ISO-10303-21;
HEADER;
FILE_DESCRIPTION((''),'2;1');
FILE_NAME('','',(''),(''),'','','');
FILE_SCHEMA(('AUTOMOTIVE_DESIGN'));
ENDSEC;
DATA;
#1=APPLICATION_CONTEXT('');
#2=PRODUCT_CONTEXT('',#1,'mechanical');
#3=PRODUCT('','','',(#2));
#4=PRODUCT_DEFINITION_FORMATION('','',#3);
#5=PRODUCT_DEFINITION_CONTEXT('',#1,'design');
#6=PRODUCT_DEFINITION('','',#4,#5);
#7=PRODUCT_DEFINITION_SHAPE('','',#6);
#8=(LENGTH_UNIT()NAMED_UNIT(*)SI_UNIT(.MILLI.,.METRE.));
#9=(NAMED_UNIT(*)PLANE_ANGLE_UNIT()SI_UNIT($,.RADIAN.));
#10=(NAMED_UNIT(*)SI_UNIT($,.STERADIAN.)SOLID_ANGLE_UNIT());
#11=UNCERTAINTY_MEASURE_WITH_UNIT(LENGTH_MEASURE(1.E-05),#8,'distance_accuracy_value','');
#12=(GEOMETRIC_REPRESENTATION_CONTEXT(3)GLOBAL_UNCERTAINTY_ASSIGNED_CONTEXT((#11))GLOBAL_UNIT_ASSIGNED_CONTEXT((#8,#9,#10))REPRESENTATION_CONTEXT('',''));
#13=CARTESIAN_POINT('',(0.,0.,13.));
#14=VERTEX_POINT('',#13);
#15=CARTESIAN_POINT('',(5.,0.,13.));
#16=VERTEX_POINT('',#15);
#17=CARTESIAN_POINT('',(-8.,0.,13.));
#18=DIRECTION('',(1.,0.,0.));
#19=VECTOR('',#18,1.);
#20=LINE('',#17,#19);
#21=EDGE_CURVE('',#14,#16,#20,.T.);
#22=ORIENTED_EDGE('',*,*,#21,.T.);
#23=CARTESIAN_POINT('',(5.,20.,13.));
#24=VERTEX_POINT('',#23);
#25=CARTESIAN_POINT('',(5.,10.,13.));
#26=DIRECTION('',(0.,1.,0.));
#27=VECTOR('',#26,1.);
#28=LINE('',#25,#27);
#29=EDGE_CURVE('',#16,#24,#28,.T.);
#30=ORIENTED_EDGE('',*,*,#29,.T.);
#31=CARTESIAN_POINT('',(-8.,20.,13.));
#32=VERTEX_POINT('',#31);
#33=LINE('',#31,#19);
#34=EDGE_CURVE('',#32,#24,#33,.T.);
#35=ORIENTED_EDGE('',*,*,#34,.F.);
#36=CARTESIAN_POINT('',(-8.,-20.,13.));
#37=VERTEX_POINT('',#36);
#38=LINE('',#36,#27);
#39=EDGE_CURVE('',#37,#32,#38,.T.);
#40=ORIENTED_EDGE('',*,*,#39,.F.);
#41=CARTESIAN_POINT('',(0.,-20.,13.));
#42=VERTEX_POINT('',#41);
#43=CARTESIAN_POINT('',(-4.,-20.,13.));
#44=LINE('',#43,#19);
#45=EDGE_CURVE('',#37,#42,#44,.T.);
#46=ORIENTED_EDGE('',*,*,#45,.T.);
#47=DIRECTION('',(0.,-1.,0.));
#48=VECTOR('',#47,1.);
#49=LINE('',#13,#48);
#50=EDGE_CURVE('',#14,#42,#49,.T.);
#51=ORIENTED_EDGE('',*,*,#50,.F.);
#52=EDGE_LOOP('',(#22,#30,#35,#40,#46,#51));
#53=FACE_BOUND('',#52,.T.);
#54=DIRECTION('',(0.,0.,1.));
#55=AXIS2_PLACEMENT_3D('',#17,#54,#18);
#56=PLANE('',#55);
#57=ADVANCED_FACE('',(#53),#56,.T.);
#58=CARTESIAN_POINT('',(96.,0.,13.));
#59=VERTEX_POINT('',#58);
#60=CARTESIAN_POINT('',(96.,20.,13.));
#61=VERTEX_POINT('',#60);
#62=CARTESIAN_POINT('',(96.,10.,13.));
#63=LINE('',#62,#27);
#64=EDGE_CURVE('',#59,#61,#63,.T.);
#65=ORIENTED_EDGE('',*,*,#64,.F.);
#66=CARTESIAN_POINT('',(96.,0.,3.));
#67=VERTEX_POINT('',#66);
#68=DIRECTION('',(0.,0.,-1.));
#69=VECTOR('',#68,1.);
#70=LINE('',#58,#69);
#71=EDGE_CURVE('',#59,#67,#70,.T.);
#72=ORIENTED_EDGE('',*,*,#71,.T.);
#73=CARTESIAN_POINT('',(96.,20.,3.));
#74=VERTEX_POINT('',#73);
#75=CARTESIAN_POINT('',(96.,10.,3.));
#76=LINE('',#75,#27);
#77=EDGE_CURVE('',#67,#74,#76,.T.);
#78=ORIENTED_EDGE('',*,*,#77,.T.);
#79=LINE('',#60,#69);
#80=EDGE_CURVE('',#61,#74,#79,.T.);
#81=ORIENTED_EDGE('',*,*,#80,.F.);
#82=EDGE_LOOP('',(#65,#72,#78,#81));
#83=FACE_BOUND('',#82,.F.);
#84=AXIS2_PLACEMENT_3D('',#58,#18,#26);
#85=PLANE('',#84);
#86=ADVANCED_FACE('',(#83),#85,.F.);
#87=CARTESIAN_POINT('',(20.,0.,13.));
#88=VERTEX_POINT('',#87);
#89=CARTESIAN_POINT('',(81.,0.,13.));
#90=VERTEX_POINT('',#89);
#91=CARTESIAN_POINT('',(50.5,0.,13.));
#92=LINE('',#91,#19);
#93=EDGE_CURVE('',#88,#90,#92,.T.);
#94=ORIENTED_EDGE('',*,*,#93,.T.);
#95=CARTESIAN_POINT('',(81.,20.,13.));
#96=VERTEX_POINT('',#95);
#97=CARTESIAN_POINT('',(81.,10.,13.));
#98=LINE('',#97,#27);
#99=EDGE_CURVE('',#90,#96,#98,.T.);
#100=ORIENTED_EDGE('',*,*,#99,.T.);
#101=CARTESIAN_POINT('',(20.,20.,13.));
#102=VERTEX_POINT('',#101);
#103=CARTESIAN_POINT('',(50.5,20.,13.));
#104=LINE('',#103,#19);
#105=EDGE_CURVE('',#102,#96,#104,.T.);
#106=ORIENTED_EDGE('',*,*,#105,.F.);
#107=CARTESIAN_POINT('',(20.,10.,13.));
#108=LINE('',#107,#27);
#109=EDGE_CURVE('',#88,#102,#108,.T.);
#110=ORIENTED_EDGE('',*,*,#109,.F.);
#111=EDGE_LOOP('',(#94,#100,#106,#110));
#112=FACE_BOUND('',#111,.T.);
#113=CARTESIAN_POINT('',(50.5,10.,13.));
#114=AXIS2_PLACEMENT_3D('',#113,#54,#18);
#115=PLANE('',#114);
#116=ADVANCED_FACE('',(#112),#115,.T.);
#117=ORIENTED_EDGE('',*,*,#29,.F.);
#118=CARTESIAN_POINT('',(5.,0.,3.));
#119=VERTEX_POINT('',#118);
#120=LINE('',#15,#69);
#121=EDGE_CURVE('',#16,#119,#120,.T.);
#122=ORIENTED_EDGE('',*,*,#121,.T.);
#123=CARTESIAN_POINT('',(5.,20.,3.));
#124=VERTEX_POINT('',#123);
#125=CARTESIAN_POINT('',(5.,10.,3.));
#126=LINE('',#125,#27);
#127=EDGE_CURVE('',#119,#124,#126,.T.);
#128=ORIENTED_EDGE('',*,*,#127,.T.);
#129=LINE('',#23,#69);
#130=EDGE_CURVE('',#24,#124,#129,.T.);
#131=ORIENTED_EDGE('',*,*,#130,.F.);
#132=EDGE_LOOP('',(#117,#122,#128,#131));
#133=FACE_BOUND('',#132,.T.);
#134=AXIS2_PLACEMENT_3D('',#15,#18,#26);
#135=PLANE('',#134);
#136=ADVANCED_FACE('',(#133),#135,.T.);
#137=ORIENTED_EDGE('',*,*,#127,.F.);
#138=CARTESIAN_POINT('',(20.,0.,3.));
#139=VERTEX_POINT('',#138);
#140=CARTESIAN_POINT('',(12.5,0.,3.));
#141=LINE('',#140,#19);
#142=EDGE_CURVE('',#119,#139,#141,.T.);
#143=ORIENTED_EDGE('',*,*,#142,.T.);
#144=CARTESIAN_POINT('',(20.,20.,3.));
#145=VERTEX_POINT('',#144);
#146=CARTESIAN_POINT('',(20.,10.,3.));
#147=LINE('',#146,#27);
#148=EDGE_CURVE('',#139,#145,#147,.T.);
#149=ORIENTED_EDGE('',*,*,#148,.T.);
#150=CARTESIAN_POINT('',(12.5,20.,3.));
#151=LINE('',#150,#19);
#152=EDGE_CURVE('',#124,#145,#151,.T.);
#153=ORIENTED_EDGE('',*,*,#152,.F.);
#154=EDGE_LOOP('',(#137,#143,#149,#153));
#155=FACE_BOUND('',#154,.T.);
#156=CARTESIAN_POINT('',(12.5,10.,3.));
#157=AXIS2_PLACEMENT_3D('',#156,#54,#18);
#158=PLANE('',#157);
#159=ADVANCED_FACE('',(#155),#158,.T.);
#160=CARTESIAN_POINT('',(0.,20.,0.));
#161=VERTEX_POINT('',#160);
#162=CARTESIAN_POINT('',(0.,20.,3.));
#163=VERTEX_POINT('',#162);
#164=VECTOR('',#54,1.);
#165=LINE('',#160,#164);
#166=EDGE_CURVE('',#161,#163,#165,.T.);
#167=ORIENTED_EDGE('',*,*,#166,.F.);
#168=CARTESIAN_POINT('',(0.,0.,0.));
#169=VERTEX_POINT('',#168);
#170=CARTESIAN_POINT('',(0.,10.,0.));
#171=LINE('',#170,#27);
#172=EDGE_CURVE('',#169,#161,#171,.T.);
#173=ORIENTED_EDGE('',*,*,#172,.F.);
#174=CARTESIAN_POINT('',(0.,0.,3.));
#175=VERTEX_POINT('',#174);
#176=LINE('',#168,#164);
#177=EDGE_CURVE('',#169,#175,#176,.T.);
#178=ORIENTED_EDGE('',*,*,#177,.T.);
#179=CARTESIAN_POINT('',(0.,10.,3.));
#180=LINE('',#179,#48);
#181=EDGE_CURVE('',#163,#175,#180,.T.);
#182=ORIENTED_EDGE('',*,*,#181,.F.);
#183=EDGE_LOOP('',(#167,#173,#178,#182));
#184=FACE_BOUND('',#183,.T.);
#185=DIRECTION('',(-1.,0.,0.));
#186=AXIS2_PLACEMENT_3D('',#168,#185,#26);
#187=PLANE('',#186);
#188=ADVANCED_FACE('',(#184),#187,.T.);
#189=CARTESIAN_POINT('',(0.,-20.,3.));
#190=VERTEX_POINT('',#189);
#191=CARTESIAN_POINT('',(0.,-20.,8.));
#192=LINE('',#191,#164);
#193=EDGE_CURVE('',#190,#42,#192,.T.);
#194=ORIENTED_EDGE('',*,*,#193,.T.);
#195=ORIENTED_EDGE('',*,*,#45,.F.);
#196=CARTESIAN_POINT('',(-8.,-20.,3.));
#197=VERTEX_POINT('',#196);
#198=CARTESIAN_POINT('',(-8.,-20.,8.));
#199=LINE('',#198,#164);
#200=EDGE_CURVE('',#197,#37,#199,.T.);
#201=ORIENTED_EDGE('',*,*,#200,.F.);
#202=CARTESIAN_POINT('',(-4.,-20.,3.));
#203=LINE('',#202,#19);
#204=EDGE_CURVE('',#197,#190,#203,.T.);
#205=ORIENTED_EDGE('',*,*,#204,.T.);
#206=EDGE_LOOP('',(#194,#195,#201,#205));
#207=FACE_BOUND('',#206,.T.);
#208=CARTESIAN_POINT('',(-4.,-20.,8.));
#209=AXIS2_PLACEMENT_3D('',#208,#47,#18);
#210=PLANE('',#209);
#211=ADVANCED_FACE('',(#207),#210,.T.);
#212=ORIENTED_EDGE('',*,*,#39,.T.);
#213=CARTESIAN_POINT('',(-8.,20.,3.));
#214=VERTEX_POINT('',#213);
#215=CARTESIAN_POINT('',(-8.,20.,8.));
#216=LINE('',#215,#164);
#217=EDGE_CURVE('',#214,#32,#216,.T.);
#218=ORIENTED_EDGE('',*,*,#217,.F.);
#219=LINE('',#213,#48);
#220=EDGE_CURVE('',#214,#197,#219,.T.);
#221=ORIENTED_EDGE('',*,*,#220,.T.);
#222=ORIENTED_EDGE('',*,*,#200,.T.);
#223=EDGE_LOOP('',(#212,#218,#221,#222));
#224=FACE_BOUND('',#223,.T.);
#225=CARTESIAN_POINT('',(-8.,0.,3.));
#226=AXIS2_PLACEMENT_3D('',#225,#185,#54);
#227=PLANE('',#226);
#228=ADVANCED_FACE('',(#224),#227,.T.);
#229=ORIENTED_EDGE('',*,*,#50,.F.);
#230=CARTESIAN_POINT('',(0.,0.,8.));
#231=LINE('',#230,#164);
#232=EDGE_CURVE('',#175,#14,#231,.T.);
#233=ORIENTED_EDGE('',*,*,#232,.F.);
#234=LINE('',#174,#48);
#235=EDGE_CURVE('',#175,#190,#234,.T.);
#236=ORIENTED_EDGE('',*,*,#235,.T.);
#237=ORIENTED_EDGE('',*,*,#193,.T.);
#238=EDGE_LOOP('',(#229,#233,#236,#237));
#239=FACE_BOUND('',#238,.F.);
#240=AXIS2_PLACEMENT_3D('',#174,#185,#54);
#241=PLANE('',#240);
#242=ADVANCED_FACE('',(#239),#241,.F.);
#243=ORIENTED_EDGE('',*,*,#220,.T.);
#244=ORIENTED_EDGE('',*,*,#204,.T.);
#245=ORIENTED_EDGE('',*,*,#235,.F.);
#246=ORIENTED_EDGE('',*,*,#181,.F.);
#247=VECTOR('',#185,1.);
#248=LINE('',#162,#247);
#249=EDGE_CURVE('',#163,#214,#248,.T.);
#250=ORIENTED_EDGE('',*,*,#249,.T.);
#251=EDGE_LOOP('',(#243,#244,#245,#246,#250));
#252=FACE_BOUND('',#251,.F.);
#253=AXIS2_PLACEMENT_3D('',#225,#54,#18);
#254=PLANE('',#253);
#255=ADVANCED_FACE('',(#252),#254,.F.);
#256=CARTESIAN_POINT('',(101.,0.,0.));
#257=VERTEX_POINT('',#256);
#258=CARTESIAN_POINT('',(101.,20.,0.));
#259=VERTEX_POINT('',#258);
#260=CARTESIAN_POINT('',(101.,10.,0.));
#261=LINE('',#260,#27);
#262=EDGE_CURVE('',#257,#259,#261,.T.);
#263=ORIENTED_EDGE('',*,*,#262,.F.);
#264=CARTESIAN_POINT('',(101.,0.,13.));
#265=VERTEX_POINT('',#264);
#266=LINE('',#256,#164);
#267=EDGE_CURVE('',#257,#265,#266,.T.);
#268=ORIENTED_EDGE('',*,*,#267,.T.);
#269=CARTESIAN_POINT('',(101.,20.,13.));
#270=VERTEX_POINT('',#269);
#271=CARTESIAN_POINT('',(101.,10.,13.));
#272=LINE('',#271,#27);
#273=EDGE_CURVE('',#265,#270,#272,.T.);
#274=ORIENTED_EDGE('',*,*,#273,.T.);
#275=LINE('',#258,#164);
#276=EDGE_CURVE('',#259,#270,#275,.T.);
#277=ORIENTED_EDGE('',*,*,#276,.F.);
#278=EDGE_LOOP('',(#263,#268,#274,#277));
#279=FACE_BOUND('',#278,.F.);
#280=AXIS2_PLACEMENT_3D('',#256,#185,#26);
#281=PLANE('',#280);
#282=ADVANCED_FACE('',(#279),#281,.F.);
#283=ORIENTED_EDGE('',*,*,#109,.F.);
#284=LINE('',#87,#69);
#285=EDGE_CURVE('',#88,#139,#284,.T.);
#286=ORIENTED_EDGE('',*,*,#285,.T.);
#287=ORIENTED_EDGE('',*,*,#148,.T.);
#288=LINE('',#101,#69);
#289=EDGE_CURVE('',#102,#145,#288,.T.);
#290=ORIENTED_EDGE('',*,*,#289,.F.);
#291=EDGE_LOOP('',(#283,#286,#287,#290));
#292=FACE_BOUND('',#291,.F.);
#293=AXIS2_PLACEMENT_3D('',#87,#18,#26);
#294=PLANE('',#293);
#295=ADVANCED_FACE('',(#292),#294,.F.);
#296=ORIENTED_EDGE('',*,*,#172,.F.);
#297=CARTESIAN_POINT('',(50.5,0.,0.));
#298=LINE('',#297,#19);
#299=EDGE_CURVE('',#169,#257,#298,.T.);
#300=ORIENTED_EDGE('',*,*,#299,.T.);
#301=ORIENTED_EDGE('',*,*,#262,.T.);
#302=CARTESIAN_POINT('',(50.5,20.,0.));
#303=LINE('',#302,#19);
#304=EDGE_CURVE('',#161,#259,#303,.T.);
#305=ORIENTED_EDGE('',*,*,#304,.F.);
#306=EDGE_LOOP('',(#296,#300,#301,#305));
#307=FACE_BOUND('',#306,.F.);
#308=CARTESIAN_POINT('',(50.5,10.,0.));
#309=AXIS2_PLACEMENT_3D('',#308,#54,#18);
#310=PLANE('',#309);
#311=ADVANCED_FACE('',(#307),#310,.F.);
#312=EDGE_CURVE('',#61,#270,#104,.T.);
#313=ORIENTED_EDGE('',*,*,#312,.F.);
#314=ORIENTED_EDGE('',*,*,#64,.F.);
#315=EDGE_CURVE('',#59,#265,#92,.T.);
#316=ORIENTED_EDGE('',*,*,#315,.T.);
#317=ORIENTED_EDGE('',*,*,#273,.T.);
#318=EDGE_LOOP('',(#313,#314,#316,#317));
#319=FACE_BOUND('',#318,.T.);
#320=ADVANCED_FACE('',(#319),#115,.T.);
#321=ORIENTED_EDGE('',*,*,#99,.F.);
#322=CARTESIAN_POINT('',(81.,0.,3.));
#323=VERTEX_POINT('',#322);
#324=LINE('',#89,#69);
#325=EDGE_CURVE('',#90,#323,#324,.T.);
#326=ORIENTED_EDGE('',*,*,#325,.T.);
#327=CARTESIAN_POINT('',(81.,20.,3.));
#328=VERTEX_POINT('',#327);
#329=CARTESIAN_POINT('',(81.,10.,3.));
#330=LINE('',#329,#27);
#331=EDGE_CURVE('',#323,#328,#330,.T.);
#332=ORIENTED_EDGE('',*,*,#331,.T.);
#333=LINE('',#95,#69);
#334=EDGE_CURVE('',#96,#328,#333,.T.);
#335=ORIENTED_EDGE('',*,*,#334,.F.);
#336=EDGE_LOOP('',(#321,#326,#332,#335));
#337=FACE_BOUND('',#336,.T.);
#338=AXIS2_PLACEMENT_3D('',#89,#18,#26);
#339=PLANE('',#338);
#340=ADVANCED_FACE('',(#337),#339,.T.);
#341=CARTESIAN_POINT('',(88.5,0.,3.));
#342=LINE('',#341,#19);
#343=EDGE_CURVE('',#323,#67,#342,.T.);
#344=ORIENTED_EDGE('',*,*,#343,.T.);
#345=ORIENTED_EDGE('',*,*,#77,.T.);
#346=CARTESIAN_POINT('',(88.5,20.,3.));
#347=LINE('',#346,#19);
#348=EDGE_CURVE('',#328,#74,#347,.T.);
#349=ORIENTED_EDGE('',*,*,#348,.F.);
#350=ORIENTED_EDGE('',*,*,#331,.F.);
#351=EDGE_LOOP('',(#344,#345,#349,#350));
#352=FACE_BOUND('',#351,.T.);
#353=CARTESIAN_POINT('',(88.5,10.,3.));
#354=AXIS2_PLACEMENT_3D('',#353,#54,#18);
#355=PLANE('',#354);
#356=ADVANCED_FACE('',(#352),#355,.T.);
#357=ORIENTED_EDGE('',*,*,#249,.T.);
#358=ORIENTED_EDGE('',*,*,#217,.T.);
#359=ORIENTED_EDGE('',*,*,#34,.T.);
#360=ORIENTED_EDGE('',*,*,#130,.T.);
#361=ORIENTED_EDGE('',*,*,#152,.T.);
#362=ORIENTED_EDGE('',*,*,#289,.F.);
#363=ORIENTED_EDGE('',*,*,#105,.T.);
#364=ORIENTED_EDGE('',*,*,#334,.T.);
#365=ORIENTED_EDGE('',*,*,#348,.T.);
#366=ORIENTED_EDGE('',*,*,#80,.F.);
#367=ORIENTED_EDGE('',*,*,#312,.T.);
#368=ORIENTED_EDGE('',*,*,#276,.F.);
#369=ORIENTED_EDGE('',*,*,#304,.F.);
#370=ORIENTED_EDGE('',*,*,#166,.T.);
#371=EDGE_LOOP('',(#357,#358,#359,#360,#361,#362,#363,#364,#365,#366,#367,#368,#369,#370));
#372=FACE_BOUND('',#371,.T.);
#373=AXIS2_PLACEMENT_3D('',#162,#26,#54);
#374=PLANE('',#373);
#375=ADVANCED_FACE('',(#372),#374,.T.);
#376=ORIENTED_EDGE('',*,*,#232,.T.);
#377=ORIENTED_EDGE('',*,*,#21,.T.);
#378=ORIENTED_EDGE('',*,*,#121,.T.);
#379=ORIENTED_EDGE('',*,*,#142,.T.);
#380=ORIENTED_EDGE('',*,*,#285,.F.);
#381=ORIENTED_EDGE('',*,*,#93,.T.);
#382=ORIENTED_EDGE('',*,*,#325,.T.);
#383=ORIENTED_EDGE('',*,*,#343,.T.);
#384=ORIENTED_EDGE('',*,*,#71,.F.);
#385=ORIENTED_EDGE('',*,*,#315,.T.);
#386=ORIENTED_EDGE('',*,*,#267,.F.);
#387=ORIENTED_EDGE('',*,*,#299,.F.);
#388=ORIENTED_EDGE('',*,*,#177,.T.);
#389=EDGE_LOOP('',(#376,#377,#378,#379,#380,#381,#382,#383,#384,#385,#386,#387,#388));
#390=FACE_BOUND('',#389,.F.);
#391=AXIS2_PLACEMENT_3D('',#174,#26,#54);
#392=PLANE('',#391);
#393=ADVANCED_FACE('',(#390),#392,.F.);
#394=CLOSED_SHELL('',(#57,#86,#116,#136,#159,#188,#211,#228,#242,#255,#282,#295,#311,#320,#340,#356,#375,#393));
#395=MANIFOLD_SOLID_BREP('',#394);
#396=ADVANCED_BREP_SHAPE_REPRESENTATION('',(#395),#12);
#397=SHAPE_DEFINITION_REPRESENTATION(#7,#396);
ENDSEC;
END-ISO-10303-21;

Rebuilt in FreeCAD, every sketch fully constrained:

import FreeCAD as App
import Part
import Sketcher
Q = App.Units.Quantity

doc = App.newDocument("Part")
body = doc.addObject("PartDesign::Body", "Body")

sketch1 = body.newObject("Sketcher::SketchObject", "Sketch")
sketch1.AttachmentSupport = (doc.getObject("XY_Plane"), [""])
sketch1.MapMode = "FlatFace"
sketch1.addGeometry([
    Part.LineSegment(App.Vector(0, 20, 0), App.Vector(0, 0, 0)),
    Part.LineSegment(App.Vector(0, 0, 0), App.Vector(101, 0, 0)),
    Part.LineSegment(App.Vector(101, 0, 0), App.Vector(101, 20, 0)),
    Part.LineSegment(App.Vector(101, 20, 0), App.Vector(0, 20, 0)),
], False)
sketch1.addConstraint([
    Sketcher.Constraint("Coincident", 0, 2, 1, 1),
    Sketcher.Constraint("Coincident", 1, 2, 2, 1),
    Sketcher.Constraint("Coincident", 2, 2, 3, 1),
    Sketcher.Constraint("Coincident", 3, 2, 0, 1),
    Sketcher.Constraint("Vertical", 0),
    Sketcher.Constraint("Horizontal", 1),
    Sketcher.Constraint("Vertical", 2),
    Sketcher.Constraint("Horizontal", 3),
    Sketcher.Constraint("Coincident", 0, 2, -1, 1),
    Sketcher.Constraint("DistanceX", 1, 1, 1, 2, Q("101 mm")),
    Sketcher.Constraint("DistanceY", 0, 2, 0, 1, Q("20 mm")),
])
pad1 = body.newObject("PartDesign::Pad", "Pad")
pad1.Profile = sketch1
pad1.Length = 13

sketch2 = body.newObject("Sketcher::SketchObject", "Sketch001")
sketch2.AttachmentSupport = (doc.getObject("XY_Plane"), [""])
sketch2.MapMode = "FlatFace"
sketch2.AttachmentOffset = App.Placement(App.Vector(0, 0, 13), App.Rotation())
sketch2.addGeometry([
    Part.LineSegment(App.Vector(5, 20, 0), App.Vector(5, 0, 0)),
    Part.LineSegment(App.Vector(5, 0, 0), App.Vector(20, 0, 0)),
    Part.LineSegment(App.Vector(20, 0, 0), App.Vector(20, 20, 0)),
    Part.LineSegment(App.Vector(20, 20, 0), App.Vector(5, 20, 0)),
    Part.LineSegment(App.Vector(81, 20, 0), App.Vector(81, 0, 0)),
    Part.LineSegment(App.Vector(81, 0, 0), App.Vector(96, 0, 0)),
    Part.LineSegment(App.Vector(96, 0, 0), App.Vector(96, 20, 0)),
    Part.LineSegment(App.Vector(96, 20, 0), App.Vector(81, 20, 0)),
], False)
sketch2.addConstraint([
    Sketcher.Constraint("Coincident", 0, 2, 1, 1),
    Sketcher.Constraint("Coincident", 1, 2, 2, 1),
    Sketcher.Constraint("Coincident", 2, 2, 3, 1),
    Sketcher.Constraint("Coincident", 3, 2, 0, 1),
    Sketcher.Constraint("Coincident", 4, 2, 5, 1),
    Sketcher.Constraint("Coincident", 5, 2, 6, 1),
    Sketcher.Constraint("Coincident", 6, 2, 7, 1),
    Sketcher.Constraint("Coincident", 7, 2, 4, 1),
    Sketcher.Constraint("Vertical", 0),
    Sketcher.Constraint("Horizontal", 1),
    Sketcher.Constraint("Vertical", 2),
    Sketcher.Constraint("Horizontal", 3),
    Sketcher.Constraint("Vertical", 4),
    Sketcher.Constraint("Horizontal", 5),
    Sketcher.Constraint("Vertical", 6),
    Sketcher.Constraint("Horizontal", 7),
    Sketcher.Constraint("PointOnObject", 0, 2, -1),
    Sketcher.Constraint("PointOnObject", 4, 2, -1),
    Sketcher.Constraint("Horizontal", 3, 2, 6, 2),
    Sketcher.Constraint("Equal", 3, 5),
    Sketcher.Constraint("DistanceX", 1, 1, 1, 2, Q("15 mm")),
    Sketcher.Constraint("DistanceY", 0, 2, 0, 1, Q("20 mm")),
    Sketcher.Constraint("DistanceX", -1, 1, 0, 2, Q("5 mm")),
    Sketcher.Constraint("DistanceX", -1, 1, 4, 2, Q("81 mm")),
])
pocket1 = body.newObject("PartDesign::Pocket", "Pocket")
pocket1.Profile = sketch2
pocket1.Length = 10

sketch3 = body.newObject("Sketcher::SketchObject", "Sketch002")
sketch3.AttachmentSupport = (doc.getObject("YZ_Plane"), [""])
sketch3.MapMode = "FlatFace"
sketch3.addGeometry([
    Part.LineSegment(App.Vector(20, 13, 0), App.Vector(20, 3, 0)),
    Part.LineSegment(App.Vector(20, 3, 0), App.Vector(0, 3, 0)),
    Part.LineSegment(App.Vector(0, 3, 0), App.Vector(0, 13, 0)),
    Part.LineSegment(App.Vector(0, 13, 0), App.Vector(20, 13, 0)),
], False)
sketch3.addConstraint([
    Sketcher.Constraint("Coincident", 0, 2, 1, 1),
    Sketcher.Constraint("Coincident", 1, 2, 2, 1),
    Sketcher.Constraint("Coincident", 2, 2, 3, 1),
    Sketcher.Constraint("Coincident", 3, 2, 0, 1),
    Sketcher.Constraint("Vertical", 0),
    Sketcher.Constraint("Horizontal", 1),
    Sketcher.Constraint("Vertical", 2),
    Sketcher.Constraint("Horizontal", 3),
    Sketcher.Constraint("PointOnObject", 1, 2, -2),
    Sketcher.Constraint("DistanceX", 1, 2, 1, 1, Q("20 mm")),
    Sketcher.Constraint("DistanceY", 0, 2, 0, 1, Q("10 mm")),
    Sketcher.Constraint("DistanceY", -1, 1, 0, 2, Q("3 mm")),
])
pad2 = body.newObject("PartDesign::Pad", "Pad001")
pad2.Profile = sketch3
pad2.Length = 8
pad2.Reversed = True

sketch4 = body.newObject("Sketcher::SketchObject", "Sketch003")
sketch4.AttachmentSupport = (doc.getObject("XZ_Plane"), [""])
sketch4.MapMode = "FlatFace"
sketch4.addGeometry([
    Part.LineSegment(App.Vector(-8, 13, 0), App.Vector(-8, 3, 0)),
    Part.LineSegment(App.Vector(-8, 3, 0), App.Vector(0, 3, 0)),
    Part.LineSegment(App.Vector(0, 3, 0), App.Vector(0, 13, 0)),
    Part.LineSegment(App.Vector(0, 13, 0), App.Vector(-8, 13, 0)),
], False)
sketch4.addConstraint([
    Sketcher.Constraint("Coincident", 0, 2, 1, 1),
    Sketcher.Constraint("Coincident", 1, 2, 2, 1),
    Sketcher.Constraint("Coincident", 2, 2, 3, 1),
    Sketcher.Constraint("Coincident", 3, 2, 0, 1),
    Sketcher.Constraint("Vertical", 0),
    Sketcher.Constraint("Horizontal", 1),
    Sketcher.Constraint("Vertical", 2),
    Sketcher.Constraint("Horizontal", 3),
    Sketcher.Constraint("PointOnObject", 1, 2, -2),
    Sketcher.Constraint("DistanceX", 1, 1, 1, 2, Q("8 mm")),
    Sketcher.Constraint("DistanceY", 0, 2, 0, 1, Q("10 mm")),
    Sketcher.Constraint("DistanceY", -1, 1, 0, 2, Q("3 mm")),
])
pad3 = body.newObject("PartDesign::Pad", "Pad002")
pad3.Profile = sketch4
pad3.Length = 20

doc.recompute()
